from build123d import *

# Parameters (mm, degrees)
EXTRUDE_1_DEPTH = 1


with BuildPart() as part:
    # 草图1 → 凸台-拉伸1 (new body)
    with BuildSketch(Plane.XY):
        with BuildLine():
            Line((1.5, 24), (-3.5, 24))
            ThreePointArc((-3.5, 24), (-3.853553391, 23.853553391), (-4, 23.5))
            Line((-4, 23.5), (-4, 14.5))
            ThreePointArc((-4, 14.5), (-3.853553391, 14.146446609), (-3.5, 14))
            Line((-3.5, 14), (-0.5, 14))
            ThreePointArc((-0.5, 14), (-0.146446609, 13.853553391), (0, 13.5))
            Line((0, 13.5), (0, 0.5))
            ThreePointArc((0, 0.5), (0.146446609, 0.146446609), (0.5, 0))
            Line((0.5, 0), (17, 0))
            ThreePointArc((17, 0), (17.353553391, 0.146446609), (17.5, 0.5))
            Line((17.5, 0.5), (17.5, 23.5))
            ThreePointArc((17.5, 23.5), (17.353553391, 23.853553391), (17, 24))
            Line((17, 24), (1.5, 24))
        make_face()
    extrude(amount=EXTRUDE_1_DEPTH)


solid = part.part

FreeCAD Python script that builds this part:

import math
import FreeCAD as App
import Part
import Sketcher

V = App.Vector

doc = App.newDocument("Part")
params = doc.addObject("Spreadsheet::Sheet", "Params")
for row, (alias, value) in enumerate([
    ("sketch1_radius", "0.5 mm"),
    ("sketch1_width", "3 mm"),
    ("sketch1_height", "9 mm"),
    ("sketch1_height2", "13 mm"),
    ("sketch1_width2", "16.5 mm"),
    ("pad1_length", "1 mm"),
], start=1):
    params.set(f"A{row}", alias)
    params.set(f"B{row}", "=" + value)
    params.setAlias(f"B{row}", alias)

body = doc.addObject("PartDesign::Body", "Body")

# Sketch on XY plane
sketch1 = body.newObject("Sketcher::SketchObject", "Sketch")
sketch1.AttachmentSupport = (doc.getObject("XY_Plane"), [""])
sketch1.MapMode = "FlatFace"
sketch1.addGeometry([
    Part.ArcOfCircle(Part.Circle(V(-3.5, 23.5, 0), V(0, 0, 1), 0.5), math.radians(90), math.radians(180)),  # 0
    Part.LineSegment(V(-4, 23.5, 0), V(-4, 14.5, 0)),  # 1
    Part.ArcOfCircle(Part.Circle(V(-3.5, 14.5, 0), V(0, 0, 1), 0.5), math.radians(180), math.radians(270)),  # 2
    Part.LineSegment(V(-3.5, 14, 0), V(-0.5, 14, 0)),  # 3
    Part.ArcOfCircle(Part.Circle(V(-0.5, 13.5, 0), V(0, 0, 1), 0.5), math.radians(0), math.radians(90)),  # 4
    Part.LineSegment(V(0, 13.5, 0), V(0, 0.5, 0)),  # 5
    Part.ArcOfCircle(Part.Circle(V(0.5, 0.5, 0), V(0, 0, 1), 0.5), math.radians(180), math.radians(270)),  # 6
    Part.LineSegment(V(0.5, 0, 0), V(17, 0, 0)),  # 7
    Part.ArcOfCircle(Part.Circle(V(17, 0.5, 0), V(0, 0, 1), 0.5), math.radians(-90), math.radians(0)),  # 8
    Part.LineSegment(V(17.5, 0.5, 0), V(17.5, 23.5, 0)),  # 9
    Part.ArcOfCircle(Part.Circle(V(17, 23.5, 0), V(0, 0, 1), 0.5), math.radians(0), math.radians(90)),  # 10
    Part.LineSegment(V(17, 24, 0), V(-3.5, 24, 0)),  # 11
], False)
sketch1.addConstraint([
    Sketcher.Constraint("Tangent", 0, 2, 1, 1),
    Sketcher.Constraint("Tangent", 1, 2, 2, 1),
    Sketcher.Constraint("Tangent", 2, 2, 3, 1),
    Sketcher.Constraint("Tangent", 3, 2, 4, 2),
    Sketcher.Constraint("Tangent", 4, 1, 5, 1),
    Sketcher.Constraint("Tangent", 5, 2, 6, 1),
    Sketcher.Constraint("Tangent", 6, 2, 7, 1),
    Sketcher.Constraint("Tangent", 7, 2, 8, 1),
    Sketcher.Constraint("Tangent", 8, 2, 9, 1),
    Sketcher.Constraint("Tangent", 9, 2, 10, 1),
    Sketcher.Constraint("Tangent", 10, 2, 11, 1),
    Sketcher.Constraint("Tangent", 11, 2, 0, 1),
    Sketcher.Constraint("Vertical", 1),
    Sketcher.Constraint("Horizontal", 3),
    Sketcher.Constraint("Vertical", 5),
    Sketcher.Constraint("Horizontal", 7),
    Sketcher.Constraint("Vertical", 9),
    Sketcher.Constraint("Horizontal", 11),
    Sketcher.Constraint("Equal", 0, 2),
    Sketcher.Constraint("Equal", 2, 4),
    Sketcher.Constraint("Equal", 4, 6),
    Sketcher.Constraint("Equal", 6, 8),
    Sketcher.Constraint("Equal", 8, 10),
    Sketcher.Constraint("PointOnObject", 4, 1, -2),
    Sketcher.Constraint("PointOnObject", 6, 2, -1),
    Sketcher.Constraint("Radius", 0, 0.5),
    Sketcher.Constraint("DistanceX", 3, 1, 3, 2, 3.0),
    Sketcher.Constraint("DistanceY", 1, 2, 1, 1, 9.0),
    Sketcher.Constraint("DistanceY", 5, 2, 5, 1, 13.0),
    Sketcher.Constraint("DistanceX", 7, 1, 7, 2, 16.5),
])
sketch1.setExpression("Constraints[25]", "Params.sketch1_radius")
sketch1.setExpression("Constraints[26]", "Params.sketch1_width")
sketch1.setExpression("Constraints[27]", "Params.sketch1_height")
sketch1.setExpression("Constraints[28]", "Params.sketch1_height2")
sketch1.setExpression("Constraints[29]", "Params.sketch1_width2")
pad1 = body.newObject("PartDesign::Pad", "Pad")
pad1.Profile = sketch1
pad1.setExpression("Length", "Params.pad1_length")

doc.recompute()
